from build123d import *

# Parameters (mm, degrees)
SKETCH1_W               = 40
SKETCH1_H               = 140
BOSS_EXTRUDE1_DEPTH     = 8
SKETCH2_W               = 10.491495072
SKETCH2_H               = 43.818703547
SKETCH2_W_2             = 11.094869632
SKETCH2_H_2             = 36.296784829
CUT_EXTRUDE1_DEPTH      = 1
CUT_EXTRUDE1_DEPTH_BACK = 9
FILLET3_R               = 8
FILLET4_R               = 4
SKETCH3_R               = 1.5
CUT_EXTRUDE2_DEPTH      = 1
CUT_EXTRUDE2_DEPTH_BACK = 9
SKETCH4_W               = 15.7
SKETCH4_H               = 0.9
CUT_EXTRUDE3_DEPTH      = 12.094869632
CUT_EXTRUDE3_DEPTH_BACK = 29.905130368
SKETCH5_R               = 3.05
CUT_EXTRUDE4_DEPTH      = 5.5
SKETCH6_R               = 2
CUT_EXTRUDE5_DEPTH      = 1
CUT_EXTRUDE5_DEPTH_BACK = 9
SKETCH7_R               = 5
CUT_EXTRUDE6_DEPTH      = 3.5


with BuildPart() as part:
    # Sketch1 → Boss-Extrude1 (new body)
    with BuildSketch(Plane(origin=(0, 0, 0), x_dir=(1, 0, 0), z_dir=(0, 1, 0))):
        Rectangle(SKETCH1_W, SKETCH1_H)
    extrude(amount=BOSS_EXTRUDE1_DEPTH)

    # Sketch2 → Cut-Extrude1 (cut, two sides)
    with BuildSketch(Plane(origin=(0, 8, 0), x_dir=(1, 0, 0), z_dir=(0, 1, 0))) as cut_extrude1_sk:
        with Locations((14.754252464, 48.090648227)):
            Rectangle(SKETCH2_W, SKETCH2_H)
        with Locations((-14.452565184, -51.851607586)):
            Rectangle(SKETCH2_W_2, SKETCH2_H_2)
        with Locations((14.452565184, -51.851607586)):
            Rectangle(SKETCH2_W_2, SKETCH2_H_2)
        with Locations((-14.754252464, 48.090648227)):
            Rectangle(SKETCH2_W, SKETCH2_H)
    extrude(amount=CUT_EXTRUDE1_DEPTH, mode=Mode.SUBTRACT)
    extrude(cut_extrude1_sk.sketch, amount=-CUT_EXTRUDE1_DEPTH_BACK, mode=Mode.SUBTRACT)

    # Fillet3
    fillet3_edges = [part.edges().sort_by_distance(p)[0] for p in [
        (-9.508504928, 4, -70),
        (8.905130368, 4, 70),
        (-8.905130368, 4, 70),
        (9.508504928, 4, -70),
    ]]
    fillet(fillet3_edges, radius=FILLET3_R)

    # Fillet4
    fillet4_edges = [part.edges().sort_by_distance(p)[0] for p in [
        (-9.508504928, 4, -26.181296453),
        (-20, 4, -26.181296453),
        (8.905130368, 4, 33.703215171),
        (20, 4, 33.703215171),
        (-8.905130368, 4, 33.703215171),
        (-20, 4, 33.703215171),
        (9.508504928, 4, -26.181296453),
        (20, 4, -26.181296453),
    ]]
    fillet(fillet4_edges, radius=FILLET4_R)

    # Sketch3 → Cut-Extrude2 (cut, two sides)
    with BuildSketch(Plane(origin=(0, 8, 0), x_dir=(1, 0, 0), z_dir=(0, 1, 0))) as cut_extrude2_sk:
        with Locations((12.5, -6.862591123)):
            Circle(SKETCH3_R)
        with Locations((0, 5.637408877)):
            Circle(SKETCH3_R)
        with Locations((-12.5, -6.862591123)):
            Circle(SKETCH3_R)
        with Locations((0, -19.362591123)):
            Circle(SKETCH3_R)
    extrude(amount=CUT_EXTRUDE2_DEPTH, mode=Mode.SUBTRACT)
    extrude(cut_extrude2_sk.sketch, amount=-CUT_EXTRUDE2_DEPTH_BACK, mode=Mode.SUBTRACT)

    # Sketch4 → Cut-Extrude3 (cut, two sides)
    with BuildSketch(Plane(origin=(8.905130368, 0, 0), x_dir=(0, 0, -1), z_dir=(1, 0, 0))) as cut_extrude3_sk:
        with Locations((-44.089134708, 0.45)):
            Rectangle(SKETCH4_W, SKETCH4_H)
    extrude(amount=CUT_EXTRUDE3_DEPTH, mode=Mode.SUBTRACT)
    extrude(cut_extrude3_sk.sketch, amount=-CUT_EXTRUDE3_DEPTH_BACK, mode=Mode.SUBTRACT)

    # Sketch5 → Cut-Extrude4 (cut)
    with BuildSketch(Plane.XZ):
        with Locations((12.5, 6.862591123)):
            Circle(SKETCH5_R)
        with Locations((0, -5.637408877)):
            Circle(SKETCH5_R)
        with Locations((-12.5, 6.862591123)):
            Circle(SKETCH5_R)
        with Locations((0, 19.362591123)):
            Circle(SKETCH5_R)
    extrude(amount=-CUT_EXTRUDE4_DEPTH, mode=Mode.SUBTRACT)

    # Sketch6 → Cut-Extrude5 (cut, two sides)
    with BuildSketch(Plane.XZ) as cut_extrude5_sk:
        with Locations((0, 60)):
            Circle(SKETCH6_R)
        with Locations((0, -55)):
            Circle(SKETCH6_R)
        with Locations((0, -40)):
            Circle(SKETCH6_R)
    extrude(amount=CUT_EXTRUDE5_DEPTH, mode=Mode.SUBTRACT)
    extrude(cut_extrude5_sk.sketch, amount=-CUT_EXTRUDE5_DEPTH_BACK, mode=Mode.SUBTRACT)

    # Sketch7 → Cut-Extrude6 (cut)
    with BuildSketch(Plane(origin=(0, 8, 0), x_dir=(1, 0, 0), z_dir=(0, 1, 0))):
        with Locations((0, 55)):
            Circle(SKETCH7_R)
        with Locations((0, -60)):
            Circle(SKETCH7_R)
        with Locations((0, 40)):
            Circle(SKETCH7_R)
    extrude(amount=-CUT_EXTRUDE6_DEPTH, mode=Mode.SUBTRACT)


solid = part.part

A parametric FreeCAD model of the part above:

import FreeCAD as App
import Part
import Sketcher
Q = App.Units.Quantity


def edges_at(feature, points):
    """Names of the edges that pass closest to the given points."""
    edges = feature.Shape.Edges
    near = lambda p: min(range(len(edges)), key=lambda i: edges[i].distToShape(Part.Vertex(*p))[0])
    return sorted({f"Edge{near(p) + 1}" for p in points})

doc = App.newDocument("Part")
params = doc.addObject("Spreadsheet::Sheet", "Params")
for row, (alias, value) in enumerate([
    ("sketch1_width", "40 mm"),
    ("sketch1_height", "140 mm"),
    ("pad1_length", "8 mm"),
    ("fillet_radius", "8 mm"),
    ("fillet2_radius", "4 mm"),
    ("sketch3_diameter", "3 mm"),
    ("sketch4_width", "0.9 mm"),
    ("sketch4_height", "15.7 mm"),
    ("sketch5_diameter", "6.1 mm"),
    ("pocket4_length", "5.5 mm"),
    ("sketch6_diameter", "4 mm"),
    ("sketch7_diameter", "10 mm"),
    ("pocket6_length", "3.5 mm"),
], start=1):
    params.set(f"A{row}", alias)
    params.set(f"B{row}", "=" + value)
    params.setAlias(f"B{row}", alias)

body = doc.addObject("PartDesign::Body", "Body")

sketch1 = doc.addObject("Sketcher::SketchObject", "Sketch")
body.addObject(sketch1)
sketch1.AttachmentSupport = (doc.XZ_Plane, [""])
sketch1.MapMode = "FlatFace"
sketch1.addGeometry([
    Part.LineSegment(App.Vector(-20, -70, 0), App.Vector(-20, 70, 0)),
    Part.LineSegment(App.Vector(-20, 70, 0), App.Vector(20, 70, 0)),
    Part.LineSegment(App.Vector(20, 70, 0), App.Vector(20, -70, 0)),
    Part.LineSegment(App.Vector(20, -70, 0), App.Vector(-20, -70, 0)),
], False)
sketch1.addConstraint([
    Sketcher.Constraint("Coincident", 0, 2, 1, 1),
    Sketcher.Constraint("Coincident", 1, 2, 2, 1),
    Sketcher.Constraint("Coincident", 2, 2, 3, 1),
    Sketcher.Constraint("Coincident", 3, 2, 0, 1),
    Sketcher.Constraint("Vertical", 0),
    Sketcher.Constraint("Horizontal", 1),
    Sketcher.Constraint("Vertical", 2),
    Sketcher.Constraint("Horizontal", 3),
    Sketcher.Constraint("Symmetric", 0, 2, 2, 2, -1, 1),
    Sketcher.Constraint("DistanceX", 1, 1, 1, 2, Q("40 mm")),
    Sketcher.Constraint("DistanceY", 0, 1, 0, 2, Q("140 mm")),
])
sketch1.setExpression("Constraints[9]", "Params.sketch1_width")
sketch1.setExpression("Constraints[10]", "Params.sketch1_height")
pad1 = doc.addObject("PartDesign::Pad", "Pad")
body.addObject(pad1)
pad1.Profile = sketch1
pad1.setExpression("Length", "Params.pad1_length")
pad1.Reversed = True

sketch2 = doc.addObject("Sketcher::SketchObject", "Sketch001")
body.addObject(sketch2)
sketch2.AttachmentSupport = (doc.XZ_Plane, [""])
sketch2.MapMode = "FlatFace"
sketch2.AttachmentOffset = App.Placement(App.Vector(0, 0, -8), App.Rotation())
sketch2.addGeometry([
    Part.LineSegment(App.Vector(10, -70, 0), App.Vector(10, -26, 0)),
    Part.LineSegment(App.Vector(10, -26, 0), App.Vector(20, -26, 0)),
    Part.LineSegment(App.Vector(20, -26, 0), App.Vector(20, -70, 0)),
    Part.LineSegment(App.Vector(20, -70, 0), App.Vector(10, -70, 0)),
    Part.LineSegment(App.Vector(-20, 34, 0), App.Vector(-20, 70, 0)),
    Part.LineSegment(App.Vector(-20, 70, 0), App.Vector(-9, 70, 0)),
    Part.LineSegment(App.Vector(-9, 70, 0), App.Vector(-9, 34, 0)),
    Part.LineSegment(App.Vector(-9, 34, 0), App.Vector(-20, 34, 0)),
    Part.LineSegment(App.Vector(9, 34, 0), App.Vector(9, 70, 0)),
    Part.LineSegment(App.Vector(9, 70, 0), App.Vector(20, 70, 0)),
    Part.LineSegment(App.Vector(20, 70, 0), App.Vector(20, 34, 0)),
    Part.LineSegment(App.Vector(20, 34, 0), App.Vector(9, 34, 0)),
    Part.LineSegment(App.Vector(-20, -70, 0), App.Vector(-20, -26, 0)),
    Part.LineSegment(App.Vector(-20, -26, 0), App.Vector(-10, -26, 0)),
    Part.LineSegment(App.Vector(-10, -26, 0), App.Vector(-10, -70, 0)),
    Part.LineSegment(App.Vector(-10, -70, 0), App.Vector(-20, -70, 0)),
], False)
sketch2.addConstraint([
    Sketcher.Constraint("Coincident", 0, 2, 1, 1),
    Sketcher.Constraint("Coincident", 1, 2, 2, 1),
    Sketcher.Constraint("Coincident", 2, 2, 3, 1),
    Sketcher.Constraint("Coincident", 3, 2, 0, 1),
    Sketcher.Constraint("Coincident", 4, 2, 5, 1),
    Sketcher.Constraint("Coincident", 5, 2, 6, 1),
    Sketcher.Constraint("Coincident", 6, 2, 7, 1),
    Sketcher.Constraint("Coincident", 7, 2, 4, 1),
    Sketcher.Constraint("Coincident", 8, 2, 9, 1),
    Sketcher.Constraint("Coincident", 9, 2, 10, 1),
    Sketcher.Constraint("Coincident", 10, 2, 11, 1),
    Sketcher.Constraint("Coincident", 11, 2, 8, 1),
    Sketcher.Constraint("Coincident", 12, 2, 13, 1),
    Sketcher.Constraint("Coincident", 13, 2, 14, 1),
    Sketcher.Constraint("Coincident", 14, 2, 15, 1),
    Sketcher.Constraint("Coincident", 15, 2, 12, 1),
    Sketcher.Constraint("Vertical", 0),
    Sketcher.Constraint("Horizontal", 1),
    Sketcher.Constraint("Vertical", 2),
    Sketcher.Constraint("Horizontal", 3),
    Sketcher.Constraint("Vertical", 4),
    Sketcher.Constraint("Horizontal", 5),
    Sketcher.Constraint("Vertical", 6),
    Sketcher.Constraint("Horizontal", 7),
    Sketcher.Constraint("Vertical", 8),
    Sketcher.Constraint("Horizontal", 9),
    Sketcher.Constraint("Vertical", 10),
    Sketcher.Constraint("Horizontal", 11),
    Sketcher.Constraint("Vertical", 12),
    Sketcher.Constraint("Horizontal", 13),
    Sketcher.Constraint("Vertical", 14),
    Sketcher.Constraint("Horizontal", 15),
    Sketcher.Constraint("Symmetric", 2, 2, 4, 2, -1, 1),
    Sketcher.Constraint("Symmetric", 9, 2, 15, 2, -1, 1),
    Sketcher.Constraint("Symmetric", 5, 2, 8, 2, -2),
    Sketcher.Constraint("Symmetric", 7, 2, 10, 2, -2),
    Sketcher.Constraint("Symmetric", 0, 2, 13, 2, -2),
    Sketcher.Constraint("DistanceX", -1, 1, 1, 2, Q("20 mm")),
    Sketcher.Constraint("DistanceY", 2, 2, -1, 1, Q("70 mm")),
    Sketcher.Constraint("DistanceX", 5, 1, 5, 2, Q("11.09487 mm")),
    Sketcher.Constraint("DistanceX", 1, 1, 1, 2, Q("10.491495 mm")),
    Sketcher.Constraint("DistanceY", 0, 1, 0, 2, Q("43.818704 mm")),
    Sketcher.Constraint("DistanceY", 4, 1, 4, 2, Q("36.296785 mm")),
])
pocket1 = doc.addObject("PartDesign::Pocket", "Pocket")
body.addObject(pocket1)
pocket1.Profile = sketch2
pocket1.Type = "ThroughAll"
pocket1.Midplane = True
doc.recompute()

fillet = doc.addObject("PartDesign::Fillet", "Fillet")
body.addObject(fillet)
fillet.Base = (pocket1, edges_at(pocket1, [
    (-9.509, 4, -70),
    (8.905, 4, 70),
    (-8.905, 4, 70),
    (9.509, 4, -70),
]))
fillet.setExpression("Radius", "Params.fillet_radius")
doc.recompute()

fillet2 = doc.addObject("PartDesign::Fillet", "Fillet001")
body.addObject(fillet2)
fillet2.Base = (fillet, edges_at(fillet, [
    (-9.509, 4, -26.181),
    (-20, 4, -26.181),
    (8.905, 4, 33.703),
    (20, 4, 33.703),
    (-8.905, 4, 33.703),
    (-20, 4, 33.703),
    (9.509, 4, -26.181),
    (20, 4, -26.181),
]))
fillet2.setExpression("Radius", "Params.fillet2_radius")

sketch3 = doc.addObject("Sketcher::SketchObject", "Sketch002")
body.addObject(sketch3)
sketch3.AttachmentSupport = (doc.XZ_Plane, [""])
sketch3.MapMode = "FlatFace"
sketch3.AttachmentOffset = App.Placement(App.Vector(0, 0, -8), App.Rotation())
sketch3.addGeometry([
    Part.Circle(App.Vector(12.5, 6.9, 0), App.Vector(0, 0, 1), 1.5),
    Part.Circle(App.Vector(0, -5.6, 0), App.Vector(0, 0, 1), 1.5),
    Part.Circle(App.Vector(-12.5, 6.9, 0), App.Vector(0, 0, 1), 1.5),
    Part.Circle(App.Vector(0, 19.4, 0), App.Vector(0, 0, 1), 1.5),
], False)
sketch3.addConstraint([
    Sketcher.Constraint("Equal", 0, 1),
    Sketcher.Constraint("Equal", 1, 2),
    Sketcher.Constraint("Equal", 2, 3),
    Sketcher.Constraint("Symmetric", 0, 3, 2, 3, -2),
    Sketcher.Constraint("PointOnObject", 1, 3, -2),
    Sketcher.Constraint("PointOnObject", 3, 3, -2),
    Sketcher.Constraint("Diameter", 0, Q("3 mm")),
    Sketcher.Constraint("DistanceX", 2, 3, 0, 3, Q("25 mm")),
    Sketcher.Constraint("DistanceY", 1, 3, 3, 3, Q("25 mm")),
    Sketcher.Constraint("DistanceY", 1, 3, 0, 3, Q("12.5 mm")),
    Sketcher.Constraint("DistanceY", -1, 1, 0, 3, Q("6.862591 mm")),
])
sketch3.setExpression("Constraints[6]", "Params.sketch3_diameter")
pocket2 = doc.addObject("PartDesign::Pocket", "Pocket001")
body.addObject(pocket2)
pocket2.Profile = sketch3
pocket2.Type = "ThroughAll"
pocket2.Midplane = True

sketch4 = doc.addObject("Sketcher::SketchObject", "Sketch003")
body.addObject(sketch4)
sketch4.AttachmentSupport = (doc.YZ_Plane, [""])
sketch4.MapMode = "FlatFace"
sketch4.AttachmentOffset = App.Placement(App.Vector(0, 0, 8.90513), App.Rotation())
sketch4.addGeometry([
    Part.LineSegment(App.Vector(0.9, 51.9, 0), App.Vector(0, 51.9, 0)),
    Part.LineSegment(App.Vector(0, 51.9, 0), App.Vector(0, 36.2, 0)),
    Part.LineSegment(App.Vector(0, 36.2, 0), App.Vector(0.9, 36.2, 0)),
    Part.LineSegment(App.Vector(0.9, 36.2, 0), App.Vector(0.9, 51.9, 0)),
], False)
sketch4.addConstraint([
    Sketcher.Constraint("Coincident", 0, 2, 1, 1),
    Sketcher.Constraint("Coincident", 1, 2, 2, 1),
    Sketcher.Constraint("Coincident", 2, 2, 3, 1),
    Sketcher.Constraint("Coincident", 3, 2, 0, 1),
    Sketcher.Constraint("Horizontal", 0),
    Sketcher.Constraint("Vertical", 1),
    Sketcher.Constraint("Horizontal", 2),
    Sketcher.Constraint("Vertical", 3),
    Sketcher.Constraint("PointOnObject", 0, 2, -2),
    Sketcher.Constraint("DistanceX", 0, 2, 0, 1, Q("0.9 mm")),
    Sketcher.Constraint("DistanceY", 1, 2, 1, 1, Q("15.7 mm")),
    Sketcher.Constraint("DistanceY", -1, 1, 0, 2, Q("51.939135 mm")),
])
sketch4.setExpression("Constraints[9]", "Params.sketch4_width")
sketch4.setExpression("Constraints[10]", "Params.sketch4_height")
pocket3 = doc.addObject("PartDesign::Pocket", "Pocket002")
body.addObject(pocket3)
pocket3.Profile = sketch4
pocket3.Type = "ThroughAll"
pocket3.Midplane = True

sketch5 = doc.addObject("Sketcher::SketchObject", "Sketch004")
body.addObject(sketch5)
sketch5.AttachmentSupport = (doc.XZ_Plane, [""])
sketch5.MapMode = "FlatFace"
sketch5.addGeometry([
    Part.Circle(App.Vector(12.5, 6.9, 0), App.Vector(0, 0, 1), 3),
    Part.Circle(App.Vector(0, -5.6, 0), App.Vector(0, 0, 1), 3),
    Part.Circle(App.Vector(-12.5, 6.9, 0), App.Vector(0, 0, 1), 3),
    Part.Circle(App.Vector(0, 19.4, 0), App.Vector(0, 0, 1), 3),
], False)
sketch5.addConstraint([
    Sketcher.Constraint("Equal", 0, 1),
    Sketcher.Constraint("Equal", 1, 2),
    Sketcher.Constraint("Equal", 2, 3),
    Sketcher.Constraint("Symmetric", 0, 3, 2, 3, -2),
    Sketcher.Constraint("PointOnObject", 1, 3, -2),
    Sketcher.Constraint("PointOnObject", 3, 3, -2),
    Sketcher.Constraint("Diameter", 0, Q("6.1 mm")),
    Sketcher.Constraint("DistanceX", 2, 3, 0, 3, Q("25 mm")),
    Sketcher.Constraint("DistanceY", 1, 3, 3, 3, Q("25 mm")),
    Sketcher.Constraint("DistanceY", 1, 3, 0, 3, Q("12.5 mm")),
    Sketcher.Constraint("DistanceY", -1, 1, 0, 3, Q("6.862591 mm")),
])
sketch5.setExpression("Constraints[6]", "Params.sketch5_diameter")
pocket4 = doc.addObject("PartDesign::Pocket", "Pocket003")
body.addObject(pocket4)
pocket4.Profile = sketch5
pocket4.setExpression("Length", "Params.pocket4_length")

sketch6 = doc.addObject("Sketcher::SketchObject", "Sketch005")
body.addObject(sketch6)
sketch6.AttachmentSupport = (doc.XZ_Plane, [""])
sketch6.MapMode = "FlatFace"
sketch6.addGeometry([
    Part.Circle(App.Vector(0, 60, 0), App.Vector(0, 0, 1), 2),
    Part.Circle(App.Vector(0, -55, 0), App.Vector(0, 0, 1), 2),
    Part.Circle(App.Vector(0, -40, 0), App.Vector(0, 0, 1), 2),
], False)
sketch6.addConstraint([
    Sketcher.Constraint("Equal", 0, 1),
    Sketcher.Constraint("Equal", 1, 2),
    Sketcher.Constraint("PointOnObject", 0, 3, -2),
    Sketcher.Constraint("PointOnObject", 1, 3, -2),
    Sketcher.Constraint("PointOnObject", 2, 3, -2),
    Sketcher.Constraint("Diameter", 0, Q("4 mm")),
    Sketcher.Constraint("DistanceY", -1, 1, 0, 3, Q("60 mm")),
    Sketcher.Constraint("DistanceY", 1, 3, -1, 1, Q("55 mm")),
    Sketcher.Constraint("DistanceY", 2, 3, -1, 1, Q("40 mm")),
])
sketch6.setExpression("Constraints[5]", "Params.sketch6_diameter")
pocket5 = doc.addObject("PartDesign::Pocket", "Pocket004")
body.addObject(pocket5)
pocket5.Profile = sketch6
pocket5.Type = "ThroughAll"
pocket5.Midplane = True

sketch7 = doc.addObject("Sketcher::SketchObject", "Sketch006")
body.addObject(sketch7)
sketch7.AttachmentSupport = (doc.XZ_Plane, [""])
sketch7.MapMode = "FlatFace"
sketch7.AttachmentOffset = App.Placement(App.Vector(0, 0, -8), App.Rotation())
sketch7.addGeometry([
    Part.Circle(App.Vector(0, -55, 0), App.Vector(0, 0, 1), 5),
    Part.Circle(App.Vector(0, 60, 0), App.Vector(0, 0, 1), 5),
    Part.Circle(App.Vector(0, -40, 0), App.Vector(0, 0, 1), 5),
], False)
sketch7.addConstraint([
    Sketcher.Constraint("Equal", 0, 1),
    Sketcher.Constraint("Equal", 1, 2),
    Sketcher.Constraint("PointOnObject", 0, 3, -2),
    Sketcher.Constraint("PointOnObject", 1, 3, -2),
    Sketcher.Constraint("PointOnObject", 2, 3, -2),
    Sketcher.Constraint("Diameter", 0, Q("10 mm")),
    Sketcher.Constraint("DistanceY", 0, 3, -1, 1, Q("55 mm")),
    Sketcher.Constraint("DistanceY", -1, 1, 1, 3, Q("60 mm")),
    Sketcher.Constraint("DistanceY", 2, 3, -1, 1, Q("40 mm")),
])
sketch7.setExpression("Constraints[5]", "Params.sketch7_diameter")
pocket6 = doc.addObject("PartDesign::Pocket", "Pocket005")
body.addObject(pocket6)
pocket6.Profile = sketch7
pocket6.setExpression("Length", "Params.pocket6_length")
pocket6.Reversed = True

doc.recompute()
